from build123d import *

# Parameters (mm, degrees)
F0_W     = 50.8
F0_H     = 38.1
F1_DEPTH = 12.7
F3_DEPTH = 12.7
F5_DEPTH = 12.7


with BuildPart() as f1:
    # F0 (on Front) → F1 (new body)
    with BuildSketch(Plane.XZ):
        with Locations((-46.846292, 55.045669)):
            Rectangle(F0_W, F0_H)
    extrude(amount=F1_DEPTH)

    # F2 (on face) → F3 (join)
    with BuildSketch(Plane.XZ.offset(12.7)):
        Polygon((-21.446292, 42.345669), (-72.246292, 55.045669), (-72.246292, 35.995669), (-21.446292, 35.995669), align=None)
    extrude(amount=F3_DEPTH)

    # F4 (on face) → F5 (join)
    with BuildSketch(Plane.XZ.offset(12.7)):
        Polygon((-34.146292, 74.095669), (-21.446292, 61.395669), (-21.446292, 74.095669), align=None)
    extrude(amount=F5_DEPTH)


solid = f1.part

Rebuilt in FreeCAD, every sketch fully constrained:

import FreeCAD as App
import Part
import Sketcher
from FreeCAD import Vector
Q = App.Units.Quantity


def add_polygon(sketch, points):
    """Adds a closed chain of lines whose ends are joined by coincident constraints."""
    first, n = sketch.GeometryCount, len(points)
    for a, b in zip(points, points[1:] + points[:1]):
        sketch.addGeometry(Part.LineSegment(App.Vector(*a, 0), App.Vector(*b, 0)), False)
    for i in range(n):
        sketch.addConstraint(Sketcher.Constraint("Coincident", first + i, 2, first + (i + 1) % n, 1))

doc = App.newDocument("Part")
body = doc.addObject("PartDesign::Body", "Body")

# Sketch on XZ plane
sketch1 = body.newObject("Sketcher::SketchObject", "Sketch")
sketch1.AttachmentSupport = (doc.getObject("XZ_Plane"), [""])
sketch1.MapMode = "FlatFace"
add_polygon(sketch1, [(-72, 74), (-72, 36), (-21, 36), (-21, 74)])  # lines 0-3
sketch1.addConstraint(Sketcher.Constraint("Vertical", 0))
sketch1.addConstraint(Sketcher.Constraint("Horizontal", 1))
sketch1.addConstraint(Sketcher.Constraint("Vertical", 2))
sketch1.addConstraint(Sketcher.Constraint("Horizontal", 3))
sketch1.addConstraint(Sketcher.Constraint("DistanceX", 1, 1, 1, 2, Q("2 in")))
sketch1.addConstraint(Sketcher.Constraint("DistanceY", 0, 2, 0, 1, Q("1.5 in")))
sketch1.addConstraint(Sketcher.Constraint("DistanceX", 0, 2, -1, 1, Q("72.246292 mm")))
sketch1.addConstraint(Sketcher.Constraint("DistanceY", -1, 1, 0, 2, Q("35.995669 mm")))
pad1 = body.newObject("PartDesign::Pad", "Pad")
pad1.Profile = sketch1
pad1.Length = Q("0.5 in")

# Sketch on XZ plane
sketch2 = body.newObject("Sketcher::SketchObject", "Sketch001")
sketch2.AttachmentSupport = (doc.getObject("XZ_Plane"), [""])
sketch2.MapMode = "FlatFace"
sketch2.AttachmentOffset = App.Placement(Vector(0, 0, 0.5 * 25.4), App.Rotation())
add_polygon(sketch2, [(-21, 42), (-72, 55), (-72, 36), (-21, 36)])  # lines 0-3
sketch2.addConstraint(Sketcher.Constraint("Vertical", 1))
sketch2.addConstraint(Sketcher.Constraint("Horizontal", 2))
sketch2.addConstraint(Sketcher.Constraint("Vertical", 3))
sketch2.addConstraint(Sketcher.Constraint("DistanceX", 2, 1, 2, 2, Q("2 in")))
sketch2.addConstraint(Sketcher.Constraint("DistanceY", 1, 2, 1, 1, Q("0.75 in")))
sketch2.addConstraint(Sketcher.Constraint("DistanceY", 3, 1, 3, 2, Q("0.25 in")))
sketch2.addConstraint(Sketcher.Constraint("DistanceX", 0, 2, -1, 1, Q("72.246292 mm")))
sketch2.addConstraint(Sketcher.Constraint("DistanceY", -1, 1, 0, 2, Q("55.045669 mm")))
pad2 = body.newObject("PartDesign::Pad", "Pad001")
pad2.Profile = sketch2
pad2.Length = Q("0.5 in")

# Sketch on XZ plane
sketch3 = body.newObject("Sketcher::SketchObject", "Sketch002")
sketch3.AttachmentSupport = (doc.getObject("XZ_Plane"), [""])
sketch3.MapMode = "FlatFace"
sketch3.AttachmentOffset = App.Placement(Vector(0, 0, 0.5 * 25.4), App.Rotation())
add_polygon(sketch3, [(-34, 74), (-21, 61), (-21, 74)])  # lines 0-2
sketch3.addConstraint(Sketcher.Constraint("Vertical", 1))
sketch3.addConstraint(Sketcher.Constraint("Horizontal", 2))
sketch3.addConstraint(Sketcher.Constraint("Equal", 2, 1))
sketch3.addConstraint(Sketcher.Constraint("DistanceX", 2, 2, 2, 1, Q("0.5 in")))
sketch3.addConstraint(Sketcher.Constraint("DistanceX", 0, 2, -1, 1, Q("21.446292 mm")))
sketch3.addConstraint(Sketcher.Constraint("DistanceY", -1, 1, 0, 2, Q("61.395669 mm")))
pad3 = body.newObject("PartDesign::Pad", "Pad002")
pad3.Profile = sketch3
pad3.Length = Q("0.5 in")

doc.recompute()
